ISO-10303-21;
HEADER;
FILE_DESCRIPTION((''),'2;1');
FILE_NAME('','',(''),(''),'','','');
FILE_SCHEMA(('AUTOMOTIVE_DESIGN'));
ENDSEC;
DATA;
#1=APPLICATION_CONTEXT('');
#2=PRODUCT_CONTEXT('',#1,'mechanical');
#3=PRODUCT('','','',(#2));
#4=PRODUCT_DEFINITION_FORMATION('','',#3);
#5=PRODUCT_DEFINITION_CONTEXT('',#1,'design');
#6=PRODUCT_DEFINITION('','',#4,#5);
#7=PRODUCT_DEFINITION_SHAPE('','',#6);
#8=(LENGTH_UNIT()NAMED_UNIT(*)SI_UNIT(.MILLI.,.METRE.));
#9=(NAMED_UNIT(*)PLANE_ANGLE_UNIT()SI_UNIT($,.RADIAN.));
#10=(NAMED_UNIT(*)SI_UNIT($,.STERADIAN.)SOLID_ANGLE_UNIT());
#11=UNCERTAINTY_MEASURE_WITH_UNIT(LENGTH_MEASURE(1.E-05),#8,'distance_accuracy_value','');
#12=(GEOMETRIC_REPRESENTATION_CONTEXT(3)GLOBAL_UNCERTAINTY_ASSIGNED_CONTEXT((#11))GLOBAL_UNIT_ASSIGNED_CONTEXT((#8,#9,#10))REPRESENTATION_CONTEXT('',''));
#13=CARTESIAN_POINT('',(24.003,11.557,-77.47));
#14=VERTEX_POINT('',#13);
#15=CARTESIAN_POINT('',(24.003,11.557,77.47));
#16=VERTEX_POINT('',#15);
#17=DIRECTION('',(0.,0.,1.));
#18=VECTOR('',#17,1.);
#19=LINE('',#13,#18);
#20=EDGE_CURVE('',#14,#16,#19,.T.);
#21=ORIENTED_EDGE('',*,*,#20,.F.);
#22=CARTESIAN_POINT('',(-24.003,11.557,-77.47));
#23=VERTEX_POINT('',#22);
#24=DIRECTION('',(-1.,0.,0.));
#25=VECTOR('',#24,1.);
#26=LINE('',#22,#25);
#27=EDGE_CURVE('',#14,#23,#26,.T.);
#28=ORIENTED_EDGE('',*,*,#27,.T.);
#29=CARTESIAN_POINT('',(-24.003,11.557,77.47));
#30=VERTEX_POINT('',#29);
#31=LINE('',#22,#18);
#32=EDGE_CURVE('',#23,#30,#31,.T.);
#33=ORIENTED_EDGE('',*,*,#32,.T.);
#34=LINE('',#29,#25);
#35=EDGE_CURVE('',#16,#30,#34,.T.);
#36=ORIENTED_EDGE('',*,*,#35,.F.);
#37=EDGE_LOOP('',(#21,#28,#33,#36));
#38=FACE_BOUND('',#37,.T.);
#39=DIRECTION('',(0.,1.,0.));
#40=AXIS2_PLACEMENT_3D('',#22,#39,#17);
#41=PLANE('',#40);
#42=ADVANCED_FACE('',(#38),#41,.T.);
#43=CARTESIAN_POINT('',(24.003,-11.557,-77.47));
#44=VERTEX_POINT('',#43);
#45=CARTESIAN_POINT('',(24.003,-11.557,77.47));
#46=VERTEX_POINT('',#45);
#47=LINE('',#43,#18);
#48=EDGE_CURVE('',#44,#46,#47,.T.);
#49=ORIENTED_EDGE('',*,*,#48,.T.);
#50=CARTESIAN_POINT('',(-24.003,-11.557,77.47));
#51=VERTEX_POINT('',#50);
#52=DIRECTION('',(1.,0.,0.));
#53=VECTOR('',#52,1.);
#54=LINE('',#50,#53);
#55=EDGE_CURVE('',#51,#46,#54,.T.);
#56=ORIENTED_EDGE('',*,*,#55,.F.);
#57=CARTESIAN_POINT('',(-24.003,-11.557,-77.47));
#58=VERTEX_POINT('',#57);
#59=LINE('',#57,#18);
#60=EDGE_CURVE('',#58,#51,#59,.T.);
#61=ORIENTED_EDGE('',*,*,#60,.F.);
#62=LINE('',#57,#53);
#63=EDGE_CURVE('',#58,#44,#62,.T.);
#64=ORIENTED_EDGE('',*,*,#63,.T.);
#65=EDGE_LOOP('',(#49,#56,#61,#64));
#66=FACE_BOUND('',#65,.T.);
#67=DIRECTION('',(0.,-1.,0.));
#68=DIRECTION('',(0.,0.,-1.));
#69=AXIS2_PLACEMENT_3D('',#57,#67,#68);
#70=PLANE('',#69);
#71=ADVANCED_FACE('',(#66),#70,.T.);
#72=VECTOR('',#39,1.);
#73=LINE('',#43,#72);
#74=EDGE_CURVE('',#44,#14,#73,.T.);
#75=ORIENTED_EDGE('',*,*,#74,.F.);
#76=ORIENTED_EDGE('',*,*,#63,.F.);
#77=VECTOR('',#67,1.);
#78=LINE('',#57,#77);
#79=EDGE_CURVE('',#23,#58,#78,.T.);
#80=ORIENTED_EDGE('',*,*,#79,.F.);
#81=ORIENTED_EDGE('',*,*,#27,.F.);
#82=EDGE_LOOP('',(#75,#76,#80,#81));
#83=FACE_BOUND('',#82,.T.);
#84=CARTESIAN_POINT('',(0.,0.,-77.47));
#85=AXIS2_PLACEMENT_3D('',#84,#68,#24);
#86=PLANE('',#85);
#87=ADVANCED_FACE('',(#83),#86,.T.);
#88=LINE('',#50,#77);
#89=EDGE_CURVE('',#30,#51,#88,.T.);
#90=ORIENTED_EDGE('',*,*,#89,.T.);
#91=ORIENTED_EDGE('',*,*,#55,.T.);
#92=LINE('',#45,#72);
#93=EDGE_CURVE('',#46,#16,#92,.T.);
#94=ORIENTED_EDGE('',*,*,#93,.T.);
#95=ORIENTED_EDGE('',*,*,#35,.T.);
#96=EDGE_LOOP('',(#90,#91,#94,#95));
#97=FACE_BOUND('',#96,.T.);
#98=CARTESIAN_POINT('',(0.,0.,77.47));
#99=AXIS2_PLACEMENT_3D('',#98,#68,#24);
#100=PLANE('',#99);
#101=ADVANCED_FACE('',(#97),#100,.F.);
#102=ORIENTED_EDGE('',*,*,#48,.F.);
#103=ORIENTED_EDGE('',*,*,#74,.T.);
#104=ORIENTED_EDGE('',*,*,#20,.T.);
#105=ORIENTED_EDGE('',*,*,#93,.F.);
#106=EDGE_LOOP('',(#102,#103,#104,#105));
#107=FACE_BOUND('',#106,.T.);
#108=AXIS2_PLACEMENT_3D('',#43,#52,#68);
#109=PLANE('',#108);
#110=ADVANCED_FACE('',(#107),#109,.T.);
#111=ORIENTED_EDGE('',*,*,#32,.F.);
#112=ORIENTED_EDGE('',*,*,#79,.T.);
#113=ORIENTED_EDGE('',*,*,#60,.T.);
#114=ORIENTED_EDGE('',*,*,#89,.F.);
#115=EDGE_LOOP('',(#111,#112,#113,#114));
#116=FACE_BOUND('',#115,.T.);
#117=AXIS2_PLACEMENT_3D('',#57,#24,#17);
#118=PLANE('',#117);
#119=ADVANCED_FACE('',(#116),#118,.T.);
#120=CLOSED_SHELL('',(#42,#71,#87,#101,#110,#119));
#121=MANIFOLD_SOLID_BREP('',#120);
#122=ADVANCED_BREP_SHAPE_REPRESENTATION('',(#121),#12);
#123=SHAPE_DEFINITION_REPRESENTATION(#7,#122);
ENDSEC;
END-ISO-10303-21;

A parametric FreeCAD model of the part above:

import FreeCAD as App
import Part
import Sketcher
Q = App.Units.Quantity

doc = App.newDocument("Part")
body = doc.addObject("PartDesign::Body", "Body")

# Sketch on XY plane
sketch1 = body.newObject("Sketcher::SketchObject", "Sketch")
sketch1.AttachmentSupport = (doc.getObject("XY_Plane"), [""])
sketch1.MapMode = "FlatFace"
sketch1.addGeometry([
    Part.LineSegment(App.Vector(-24, 12, 0), App.Vector(-24, -12, 0)),
    Part.LineSegment(App.Vector(-24, -12, 0), App.Vector(24, -12, 0)),
    Part.LineSegment(App.Vector(24, -12, 0), App.Vector(24, 12, 0)),
    Part.LineSegment(App.Vector(24, 12, 0), App.Vector(-24, 12, 0)),
], False)
sketch1.addConstraint([
    Sketcher.Constraint("Coincident", 0, 2, 1, 1),
    Sketcher.Constraint("Coincident", 1, 2, 2, 1),
    Sketcher.Constraint("Coincident", 2, 2, 3, 1),
    Sketcher.Constraint("Coincident", 3, 2, 0, 1),
    Sketcher.Constraint("Vertical", 0),
    Sketcher.Constraint("Horizontal", 1),
    Sketcher.Constraint("Vertical", 2),
    Sketcher.Constraint("Horizontal", 3),
    Sketcher.Constraint("Symmetric", 0, 2, 2, 2, -1, 1),
    Sketcher.Constraint("DistanceX", 1, 1, 1, 2, Q("1.89 in")),
    Sketcher.Constraint("DistanceY", 0, 2, 0, 1, Q("0.91 in")),
])
pad1 = body.newObject("PartDesign::Pad", "Pad")
pad1.Profile = sketch1
pad1.Type = "TwoLengths"
pad1.Length = Q("3.05 in")
pad1.Length2 = Q("3.05 in")

doc.recompute()
